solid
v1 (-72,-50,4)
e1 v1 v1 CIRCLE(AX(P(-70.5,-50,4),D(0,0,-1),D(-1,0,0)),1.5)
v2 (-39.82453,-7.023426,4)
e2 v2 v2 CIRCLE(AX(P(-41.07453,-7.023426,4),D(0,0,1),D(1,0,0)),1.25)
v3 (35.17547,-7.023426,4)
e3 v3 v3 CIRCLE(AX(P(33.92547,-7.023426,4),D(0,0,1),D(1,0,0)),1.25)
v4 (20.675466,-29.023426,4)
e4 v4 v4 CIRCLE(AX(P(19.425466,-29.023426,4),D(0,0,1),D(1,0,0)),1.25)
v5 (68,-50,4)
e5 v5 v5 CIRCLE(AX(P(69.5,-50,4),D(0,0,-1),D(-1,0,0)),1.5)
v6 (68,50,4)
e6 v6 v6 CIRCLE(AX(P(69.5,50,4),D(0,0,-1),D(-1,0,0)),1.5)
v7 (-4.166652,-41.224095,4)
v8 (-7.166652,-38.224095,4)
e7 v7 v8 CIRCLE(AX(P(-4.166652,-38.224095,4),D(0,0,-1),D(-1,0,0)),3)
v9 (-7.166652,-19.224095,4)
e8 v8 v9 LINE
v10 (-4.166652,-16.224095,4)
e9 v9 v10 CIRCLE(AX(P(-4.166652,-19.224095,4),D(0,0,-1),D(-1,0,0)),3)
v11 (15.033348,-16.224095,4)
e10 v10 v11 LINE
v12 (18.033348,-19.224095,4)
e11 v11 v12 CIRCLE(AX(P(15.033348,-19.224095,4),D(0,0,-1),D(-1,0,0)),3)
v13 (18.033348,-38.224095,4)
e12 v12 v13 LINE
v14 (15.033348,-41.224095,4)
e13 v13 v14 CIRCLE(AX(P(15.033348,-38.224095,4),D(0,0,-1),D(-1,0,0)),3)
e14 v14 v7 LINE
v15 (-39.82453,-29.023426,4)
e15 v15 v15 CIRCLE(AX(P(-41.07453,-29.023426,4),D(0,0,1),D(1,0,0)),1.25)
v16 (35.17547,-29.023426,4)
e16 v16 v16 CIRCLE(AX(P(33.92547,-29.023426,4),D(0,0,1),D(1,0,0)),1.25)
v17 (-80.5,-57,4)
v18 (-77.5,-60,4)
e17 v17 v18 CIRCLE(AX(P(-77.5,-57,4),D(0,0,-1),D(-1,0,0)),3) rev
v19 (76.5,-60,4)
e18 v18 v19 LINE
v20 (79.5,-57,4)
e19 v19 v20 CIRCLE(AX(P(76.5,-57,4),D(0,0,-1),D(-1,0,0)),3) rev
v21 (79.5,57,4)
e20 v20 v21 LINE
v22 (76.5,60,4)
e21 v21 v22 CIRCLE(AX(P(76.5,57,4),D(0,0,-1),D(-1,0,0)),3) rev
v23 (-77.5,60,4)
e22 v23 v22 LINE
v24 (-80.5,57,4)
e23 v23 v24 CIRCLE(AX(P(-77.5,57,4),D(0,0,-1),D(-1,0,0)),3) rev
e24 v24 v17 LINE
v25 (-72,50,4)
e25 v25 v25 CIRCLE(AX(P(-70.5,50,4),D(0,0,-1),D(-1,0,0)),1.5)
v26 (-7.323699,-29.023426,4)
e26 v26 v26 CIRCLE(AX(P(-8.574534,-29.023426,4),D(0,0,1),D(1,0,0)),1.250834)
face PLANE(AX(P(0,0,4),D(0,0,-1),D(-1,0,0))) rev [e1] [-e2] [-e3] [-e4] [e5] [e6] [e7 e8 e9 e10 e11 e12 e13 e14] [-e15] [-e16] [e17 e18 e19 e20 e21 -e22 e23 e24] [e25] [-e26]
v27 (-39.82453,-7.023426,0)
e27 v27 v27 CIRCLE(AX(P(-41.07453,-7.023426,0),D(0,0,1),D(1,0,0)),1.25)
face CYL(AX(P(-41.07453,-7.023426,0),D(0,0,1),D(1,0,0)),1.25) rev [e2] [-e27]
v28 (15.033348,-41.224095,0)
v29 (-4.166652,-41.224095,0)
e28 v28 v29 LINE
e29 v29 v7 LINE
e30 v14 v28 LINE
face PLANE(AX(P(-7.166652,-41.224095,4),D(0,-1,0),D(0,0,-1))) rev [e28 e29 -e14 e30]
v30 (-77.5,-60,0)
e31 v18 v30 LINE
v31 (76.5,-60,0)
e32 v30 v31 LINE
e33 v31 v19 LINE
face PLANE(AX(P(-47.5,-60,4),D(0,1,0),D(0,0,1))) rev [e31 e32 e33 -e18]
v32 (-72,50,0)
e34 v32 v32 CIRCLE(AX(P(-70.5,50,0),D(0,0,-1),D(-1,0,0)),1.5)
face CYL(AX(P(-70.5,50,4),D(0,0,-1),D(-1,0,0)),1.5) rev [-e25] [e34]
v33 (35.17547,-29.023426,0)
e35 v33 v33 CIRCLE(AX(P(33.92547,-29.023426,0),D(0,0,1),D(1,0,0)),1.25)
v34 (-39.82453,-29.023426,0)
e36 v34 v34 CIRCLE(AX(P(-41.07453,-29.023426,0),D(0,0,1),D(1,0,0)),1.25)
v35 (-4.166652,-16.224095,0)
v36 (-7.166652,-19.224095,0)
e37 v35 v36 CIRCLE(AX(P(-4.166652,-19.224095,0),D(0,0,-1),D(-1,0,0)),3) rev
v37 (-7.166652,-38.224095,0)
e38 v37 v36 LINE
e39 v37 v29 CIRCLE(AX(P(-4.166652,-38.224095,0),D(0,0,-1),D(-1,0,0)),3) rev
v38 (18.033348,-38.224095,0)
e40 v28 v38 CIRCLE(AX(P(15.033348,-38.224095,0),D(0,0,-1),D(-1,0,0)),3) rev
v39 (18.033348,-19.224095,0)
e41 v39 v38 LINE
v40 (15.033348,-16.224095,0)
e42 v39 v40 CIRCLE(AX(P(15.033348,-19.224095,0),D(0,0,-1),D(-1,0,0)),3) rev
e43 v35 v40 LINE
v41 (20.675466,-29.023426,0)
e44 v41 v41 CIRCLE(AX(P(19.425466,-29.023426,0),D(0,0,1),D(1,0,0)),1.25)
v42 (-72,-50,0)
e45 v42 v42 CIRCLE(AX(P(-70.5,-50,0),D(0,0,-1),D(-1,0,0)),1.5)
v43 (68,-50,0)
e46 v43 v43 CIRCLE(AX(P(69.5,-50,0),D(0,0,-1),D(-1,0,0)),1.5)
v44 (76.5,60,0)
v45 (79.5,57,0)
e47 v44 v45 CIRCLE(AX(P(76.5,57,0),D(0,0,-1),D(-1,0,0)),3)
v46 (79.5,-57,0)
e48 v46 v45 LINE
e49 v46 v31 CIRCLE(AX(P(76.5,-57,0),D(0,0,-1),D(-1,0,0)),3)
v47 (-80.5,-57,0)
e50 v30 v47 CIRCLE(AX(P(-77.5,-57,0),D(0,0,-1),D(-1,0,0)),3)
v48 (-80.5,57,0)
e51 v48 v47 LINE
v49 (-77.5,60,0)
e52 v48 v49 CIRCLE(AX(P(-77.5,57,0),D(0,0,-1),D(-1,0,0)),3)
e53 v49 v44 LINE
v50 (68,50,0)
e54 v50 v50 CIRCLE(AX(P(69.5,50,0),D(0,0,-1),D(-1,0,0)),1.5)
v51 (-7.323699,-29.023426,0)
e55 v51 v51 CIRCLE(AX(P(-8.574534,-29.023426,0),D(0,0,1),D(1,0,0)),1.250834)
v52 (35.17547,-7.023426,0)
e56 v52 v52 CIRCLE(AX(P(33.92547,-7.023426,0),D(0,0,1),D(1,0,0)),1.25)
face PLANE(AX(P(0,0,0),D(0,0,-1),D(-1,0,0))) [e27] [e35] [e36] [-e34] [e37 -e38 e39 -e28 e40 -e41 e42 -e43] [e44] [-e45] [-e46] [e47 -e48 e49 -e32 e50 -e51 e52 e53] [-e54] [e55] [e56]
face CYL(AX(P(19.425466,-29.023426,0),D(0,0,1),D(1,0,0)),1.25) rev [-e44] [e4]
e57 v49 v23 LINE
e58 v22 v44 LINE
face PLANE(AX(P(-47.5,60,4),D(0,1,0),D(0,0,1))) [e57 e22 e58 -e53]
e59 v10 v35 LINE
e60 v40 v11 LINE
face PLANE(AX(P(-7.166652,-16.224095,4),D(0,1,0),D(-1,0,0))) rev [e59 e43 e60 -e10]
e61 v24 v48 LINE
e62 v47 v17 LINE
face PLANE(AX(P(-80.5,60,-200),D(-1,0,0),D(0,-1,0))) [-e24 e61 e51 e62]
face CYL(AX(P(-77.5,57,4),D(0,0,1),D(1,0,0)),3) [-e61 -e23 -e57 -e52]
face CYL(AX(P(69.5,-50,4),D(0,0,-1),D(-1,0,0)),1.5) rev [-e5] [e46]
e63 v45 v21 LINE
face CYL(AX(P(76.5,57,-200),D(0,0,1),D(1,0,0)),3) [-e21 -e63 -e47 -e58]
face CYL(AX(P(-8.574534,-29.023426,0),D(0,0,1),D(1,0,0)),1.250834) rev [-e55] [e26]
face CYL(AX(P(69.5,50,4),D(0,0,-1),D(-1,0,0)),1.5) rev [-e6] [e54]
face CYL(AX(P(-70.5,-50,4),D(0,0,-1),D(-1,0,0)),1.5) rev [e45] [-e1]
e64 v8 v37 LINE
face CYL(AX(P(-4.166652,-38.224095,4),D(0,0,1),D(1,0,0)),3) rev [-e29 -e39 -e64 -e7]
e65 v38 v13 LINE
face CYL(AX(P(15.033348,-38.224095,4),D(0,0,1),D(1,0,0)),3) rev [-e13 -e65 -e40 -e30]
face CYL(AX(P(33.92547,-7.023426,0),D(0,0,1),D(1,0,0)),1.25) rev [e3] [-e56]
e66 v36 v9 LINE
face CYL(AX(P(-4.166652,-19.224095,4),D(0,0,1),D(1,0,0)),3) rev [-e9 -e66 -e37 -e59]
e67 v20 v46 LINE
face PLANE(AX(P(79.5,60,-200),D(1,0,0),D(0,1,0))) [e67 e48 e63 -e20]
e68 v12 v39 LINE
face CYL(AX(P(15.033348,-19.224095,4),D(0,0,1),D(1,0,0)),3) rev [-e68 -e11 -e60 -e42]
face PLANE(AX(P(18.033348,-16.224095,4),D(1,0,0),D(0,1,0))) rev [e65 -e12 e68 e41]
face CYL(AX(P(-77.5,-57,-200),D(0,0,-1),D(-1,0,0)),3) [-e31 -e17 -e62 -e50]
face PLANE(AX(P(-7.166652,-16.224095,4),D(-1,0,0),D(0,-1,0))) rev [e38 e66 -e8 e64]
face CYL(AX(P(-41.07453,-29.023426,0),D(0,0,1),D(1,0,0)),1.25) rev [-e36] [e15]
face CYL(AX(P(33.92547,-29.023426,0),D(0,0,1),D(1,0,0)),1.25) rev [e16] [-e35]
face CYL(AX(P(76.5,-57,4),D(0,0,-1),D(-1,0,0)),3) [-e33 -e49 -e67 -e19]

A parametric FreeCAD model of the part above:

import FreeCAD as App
import Part
import Sketcher

V = App.Vector


def edges_at(feature, points):
    """Names of the edges that pass closest to the given points."""
    edges = feature.Shape.Edges
    near = lambda p: min(range(len(edges)), key=lambda i: edges[i].distToShape(Part.Vertex(*p))[0])
    return sorted({f"Edge{near(p) + 1}" for p in points})

doc = App.newDocument("Part")
body = doc.addObject("PartDesign::Body", "Body")

# Sketch on XY plane
sketch1 = body.newObject("Sketcher::SketchObject", "Sketch")
sketch1.AttachmentSupport = (doc.getObject("XY_Plane"), [""])
sketch1.MapMode = "FlatFace"
sketch1.addGeometry(Part.LineSegment(V(-48, 60, 0), V(-48, -60, 0)), False)
sketch1.addGeometry(Part.LineSegment(V(-48, -60, 0), V(48, -60, 0)), False)
sketch1.addGeometry(Part.LineSegment(V(48, -60, 0), V(48, 60, 0)), False)
sketch1.addGeometry(Part.LineSegment(V(48, 60, 0), V(-48, 60, 0)), False)
sketch1.addConstraint(Sketcher.Constraint("Coincident", 0, 2, 1, 1))
sketch1.addConstraint(Sketcher.Constraint("Coincident", 1, 2, 2, 1))
sketch1.addConstraint(Sketcher.Constraint("Coincident", 2, 2, 3, 1))
sketch1.addConstraint(Sketcher.Constraint("Coincident", 3, 2, 0, 1))
sketch1.addConstraint(Sketcher.Constraint("Vertical", 0))
sketch1.addConstraint(Sketcher.Constraint("Horizontal", 1))
sketch1.addConstraint(Sketcher.Constraint("Vertical", 2))
sketch1.addConstraint(Sketcher.Constraint("Horizontal", 3))
sketch1.addConstraint(Sketcher.Constraint("Symmetric", 0, 2, 2, 2, -1, 1))
sketch1.addConstraint(Sketcher.Constraint("DistanceX", 1, 1, 1, 2, 95.0))
sketch1.addConstraint(Sketcher.Constraint("DistanceY", 0, 2, 0, 1, 120.0))
pad1 = body.newObject("PartDesign::Pad", "Pad")
pad1.Profile = sketch1
pad1.Length = 4
doc.recompute()

fillet = body.newObject("PartDesign::Fillet", "Fillet")
fillet.Base = (pad1, edges_at(pad1, [
    (-47.5, -60, 2),
    (-47.5, 60, 2),
    (47.5, 60, 2),
    (47.5, -60, 2),
]))
fillet.Radius = 3

# Sketch on XY plane
sketch2 = body.newObject("Sketcher::SketchObject", "Sketch001")
sketch2.AttachmentSupport = (doc.getObject("XY_Plane"), [""])
sketch2.MapMode = "FlatFace"
sketch2.AttachmentOffset = App.Placement(V(0, 0, 4), App.Rotation())
sketch2.addGeometry(Part.LineSegment(V(-80, 60, 0), V(-80, -60, 0)), False)
sketch2.addGeometry(Part.LineSegment(V(-80, -60, 0), V(80, -60, 0)), False)
sketch2.addGeometry(Part.LineSegment(V(80, -60, 0), V(80, 60, 0)), False)
sketch2.addGeometry(Part.LineSegment(V(80, 60, 0), V(-80, 60, 0)), False)
sketch2.addGeometry(Part.LineSegment(V(44, -57, 0), V(-44, -57, 0)), False)
sketch2.addGeometry(Part.LineSegment(V(-44, -57, 0), V(-44, 57, 0)), False)
sketch2.addGeometry(Part.LineSegment(V(-44, 57, 0), V(44, 57, 0)), False)
sketch2.addGeometry(Part.LineSegment(V(44, 57, 0), V(44, -57, 0)), False)
sketch2.addConstraint(Sketcher.Constraint("Coincident", 0, 2, 1, 1))
sketch2.addConstraint(Sketcher.Constraint("Coincident", 1, 2, 2, 1))
sketch2.addConstraint(Sketcher.Constraint("Coincident", 2, 2, 3, 1))
sketch2.addConstraint(Sketcher.Constraint("Coincident", 3, 2, 0, 1))
sketch2.addConstraint(Sketcher.Constraint("Coincident", 4, 2, 5, 1))
sketch2.addConstraint(Sketcher.Constraint("Coincident", 5, 2, 6, 1))
sketch2.addConstraint(Sketcher.Constraint("Coincident", 6, 2, 7, 1))
sketch2.addConstraint(Sketcher.Constraint("Coincident", 7, 2, 4, 1))
sketch2.addConstraint(Sketcher.Constraint("Vertical", 0))
sketch2.addConstraint(Sketcher.Constraint("Horizontal", 1))
sketch2.addConstraint(Sketcher.Constraint("Vertical", 2))
sketch2.addConstraint(Sketcher.Constraint("Horizontal", 3))
sketch2.addConstraint(Sketcher.Constraint("Horizontal", 4))
sketch2.addConstraint(Sketcher.Constraint("Vertical", 5))
sketch2.addConstraint(Sketcher.Constraint("Horizontal", 6))
sketch2.addConstraint(Sketcher.Constraint("Vertical", 7))
sketch2.addConstraint(Sketcher.Constraint("Symmetric", 4, 2, 6, 2, -1, 1))
sketch2.addConstraint(Sketcher.Constraint("DistanceX", 1, 1, 1, 2, 160.0))
sketch2.addConstraint(Sketcher.Constraint("DistanceX", 4, 2, 4, 1, 89.0))
sketch2.addConstraint(Sketcher.Constraint("DistanceY", 0, 2, 0, 1, 120.0))
sketch2.addConstraint(Sketcher.Constraint("DistanceY", 5, 1, 5, 2, 114.0))
sketch2.addConstraint(Sketcher.Constraint("DistanceY", 0, 2, -1, 1, 60.0))
sketch2.addConstraint(Sketcher.Constraint("DistanceX", 0, 2, 4, 2, 36.0))
pad2 = body.newObject("PartDesign::Pad", "Pad001")
pad2.Profile = sketch2
pad2.Length = 4
pad2.Reversed = True

# Sketch on XY plane
sketch3 = body.newObject("Sketcher::SketchObject", "Sketch002")
sketch3.AttachmentSupport = (doc.getObject("XY_Plane"), [""])
sketch3.MapMode = "FlatFace"
sketch3.AttachmentOffset = App.Placement(V(0, 0, 4), App.Rotation())
sketch3.addGeometry(Part.Circle(V(19.4, -29, 0), V(0, 0, 1), 1.2), False)
sketch3.addGeometry(Part.Circle(V(-8.6, -29, 0), V(0, 0, 1), 1.3), False)
sketch3.addGeometry(Part.Circle(V(-41.1, -7, 0), V(0, 0, 1), 1.2), False)
sketch3.addGeometry(Part.Circle(V(-41.1, -29, 0), V(0, 0, 1), 1.2), False)
sketch3.addGeometry(Part.Circle(V(33.9, -29, 0), V(0, 0, 1), 1.2), False)
sketch3.addGeometry(Part.Circle(V(33.9, -7, 0), V(0, 0, 1), 1.2), False)
sketch3.addConstraint(Sketcher.Constraint("Equal", 0, 2))
sketch3.addConstraint(Sketcher.Constraint("Equal", 2, 3))
sketch3.addConstraint(Sketcher.Constraint("Equal", 3, 4))
sketch3.addConstraint(Sketcher.Constraint("Equal", 4, 5))
sketch3.addConstraint(Sketcher.Constraint("Horizontal", 0, 3, 1, 3))
sketch3.addConstraint(Sketcher.Constraint("Horizontal", 1, 3, 3, 3))
sketch3.addConstraint(Sketcher.Constraint("Horizontal", 3, 3, 4, 3))
sketch3.addConstraint(Sketcher.Constraint("Horizontal", 2, 3, 5, 3))
sketch3.addConstraint(Sketcher.Constraint("Vertical", 2, 3, 3, 3))
sketch3.addConstraint(Sketcher.Constraint("Vertical", 4, 3, 5, 3))
sketch3.addConstraint(Sketcher.Constraint("Diameter", 0, 2.5))
sketch3.addConstraint(Sketcher.Constraint("DistanceX", 1, 3, 0, 3, 28.0))
sketch3.addConstraint(Sketcher.Constraint("DistanceY", 1, 3, 2, 3, 22.0))
sketch3.addConstraint(Sketcher.Constraint("DistanceX", 3, 3, 4, 3, 75.0))
sketch3.addConstraint(Sketcher.Constraint("Diameter", 1, 2.501669))
sketch3.addConstraint(Sketcher.Constraint("DistanceX", 2, 3, -1, 1, 41.07453))
sketch3.addConstraint(Sketcher.Constraint("DistanceX", -1, 1, 0, 3, 19.425466))
sketch3.addConstraint(Sketcher.Constraint("DistanceY", 0, 3, -1, 1, 29.023426))
pocket1 = body.newObject("PartDesign::Pocket", "Pocket")
pocket1.Profile = sketch3
pocket1.Type = "ThroughAll"

# Sketch on XY plane
sketch4 = body.newObject("Sketcher::SketchObject", "Sketch003")
sketch4.AttachmentSupport = (doc.getObject("XY_Plane"), [""])
sketch4.MapMode = "FlatFace"
sketch4.addGeometry(Part.LineSegment(V(18, -16, 0), V(18, -41, 0)), False)
sketch4.addGeometry(Part.LineSegment(V(18, -41, 0), V(-7, -41, 0)), False)
sketch4.addGeometry(Part.LineSegment(V(-7, -41, 0), V(-7, -16, 0)), False)
sketch4.addGeometry(Part.LineSegment(V(-7, -16, 0), V(18, -16, 0)), False)
sketch4.addConstraint(Sketcher.Constraint("Coincident", 0, 2, 1, 1))
sketch4.addConstraint(Sketcher.Constraint("Coincident", 1, 2, 2, 1))
sketch4.addConstraint(Sketcher.Constraint("Coincident", 2, 2, 3, 1))
sketch4.addConstraint(Sketcher.Constraint("Coincident", 3, 2, 0, 1))
sketch4.addConstraint(Sketcher.Constraint("Vertical", 0))
sketch4.addConstraint(Sketcher.Constraint("Horizontal", 1))
sketch4.addConstraint(Sketcher.Constraint("Vertical", 2))
sketch4.addConstraint(Sketcher.Constraint("Horizontal", 3))
sketch4.addConstraint(Sketcher.Constraint("DistanceY", 0, 2, 0, 1, 25.0))
sketch4.addConstraint(Sketcher.Constraint("DistanceX", 1, 2, 1, 1, 25.2))
sketch4.addConstraint(Sketcher.Constraint("DistanceX", -1, 1, 0, 2, 18.033348))
sketch4.addConstraint(Sketcher.Constraint("DistanceY", 0, 2, -1, 1, 41.224095))
pocket2 = body.newObject("PartDesign::Pocket", "Pocket001")
pocket2.Profile = sketch4
pocket2.Type = "ThroughAll"
pocket2.Reversed = True
doc.recompute()

fillet2 = body.newObject("PartDesign::Fillet", "Fillet001")
fillet2.Base = (pocket2, edges_at(pocket2, [
    (-7.167, -16.224, 2),
    (-7.167, -41.224, 2),
    (18.033, -41.224, 2),
    (18.033, -16.224, 2),
    (79.5, -60, 2),
    (-80.5, 60, 2),
    (-80.5, -60, 2),
    (79.5, 60, 2),
]))
fillet2.Radius = 3

# Sketch on XY plane
sketch5 = body.newObject("Sketcher::SketchObject", "Sketch004")
sketch5.AttachmentSupport = (doc.getObject("XY_Plane"), [""])
sketch5.MapMode = "FlatFace"
sketch5.addGeometry(Part.Circle(V(-70.5, -50, 0), V(0, 0, 1), 1.5), False)
sketch5.addGeometry(Part.Circle(V(-70.5, 50, 0), V(0, 0, 1), 1.5), False)
sketch5.addGeometry(Part.Circle(V(69.5, 50, 0), V(0, 0, 1), 1.5), False)
sketch5.addGeometry(Part.Circle(V(69.5, -50, 0), V(0, 0, 1), 1.5), False)
sketch5.addConstraint(Sketcher.Constraint("Equal", 0, 1))
sketch5.addConstraint(Sketcher.Constraint("Equal", 1, 2))
sketch5.addConstraint(Sketcher.Constraint("Equal", 2, 3))
sketch5.addConstraint(Sketcher.Constraint("Symmetric", 0, 3, 1, 3, -1))
sketch5.addConstraint(Sketcher.Constraint("Symmetric", 2, 3, 3, 3, -1))
sketch5.addConstraint(Sketcher.Constraint("Horizontal", 1, 3, 2, 3))
sketch5.addConstraint(Sketcher.Constraint("Diameter", 0, 3.0))
sketch5.addConstraint(Sketcher.Constraint("DistanceY", 0, 3, -1, 1, 50.0))
sketch5.addConstraint(Sketcher.Constraint("DistanceX", 1, 3, 2, 3, 140.0))
sketch5.addConstraint(Sketcher.Constraint("DistanceX", 0, 3, -1, 1, 70.5))
pocket3 = body.newObject("PartDesign::Pocket", "Pocket002")
pocket3.Profile = sketch5
pocket3.Type = "ThroughAll"
pocket3.Reversed = True

doc.recompute()
